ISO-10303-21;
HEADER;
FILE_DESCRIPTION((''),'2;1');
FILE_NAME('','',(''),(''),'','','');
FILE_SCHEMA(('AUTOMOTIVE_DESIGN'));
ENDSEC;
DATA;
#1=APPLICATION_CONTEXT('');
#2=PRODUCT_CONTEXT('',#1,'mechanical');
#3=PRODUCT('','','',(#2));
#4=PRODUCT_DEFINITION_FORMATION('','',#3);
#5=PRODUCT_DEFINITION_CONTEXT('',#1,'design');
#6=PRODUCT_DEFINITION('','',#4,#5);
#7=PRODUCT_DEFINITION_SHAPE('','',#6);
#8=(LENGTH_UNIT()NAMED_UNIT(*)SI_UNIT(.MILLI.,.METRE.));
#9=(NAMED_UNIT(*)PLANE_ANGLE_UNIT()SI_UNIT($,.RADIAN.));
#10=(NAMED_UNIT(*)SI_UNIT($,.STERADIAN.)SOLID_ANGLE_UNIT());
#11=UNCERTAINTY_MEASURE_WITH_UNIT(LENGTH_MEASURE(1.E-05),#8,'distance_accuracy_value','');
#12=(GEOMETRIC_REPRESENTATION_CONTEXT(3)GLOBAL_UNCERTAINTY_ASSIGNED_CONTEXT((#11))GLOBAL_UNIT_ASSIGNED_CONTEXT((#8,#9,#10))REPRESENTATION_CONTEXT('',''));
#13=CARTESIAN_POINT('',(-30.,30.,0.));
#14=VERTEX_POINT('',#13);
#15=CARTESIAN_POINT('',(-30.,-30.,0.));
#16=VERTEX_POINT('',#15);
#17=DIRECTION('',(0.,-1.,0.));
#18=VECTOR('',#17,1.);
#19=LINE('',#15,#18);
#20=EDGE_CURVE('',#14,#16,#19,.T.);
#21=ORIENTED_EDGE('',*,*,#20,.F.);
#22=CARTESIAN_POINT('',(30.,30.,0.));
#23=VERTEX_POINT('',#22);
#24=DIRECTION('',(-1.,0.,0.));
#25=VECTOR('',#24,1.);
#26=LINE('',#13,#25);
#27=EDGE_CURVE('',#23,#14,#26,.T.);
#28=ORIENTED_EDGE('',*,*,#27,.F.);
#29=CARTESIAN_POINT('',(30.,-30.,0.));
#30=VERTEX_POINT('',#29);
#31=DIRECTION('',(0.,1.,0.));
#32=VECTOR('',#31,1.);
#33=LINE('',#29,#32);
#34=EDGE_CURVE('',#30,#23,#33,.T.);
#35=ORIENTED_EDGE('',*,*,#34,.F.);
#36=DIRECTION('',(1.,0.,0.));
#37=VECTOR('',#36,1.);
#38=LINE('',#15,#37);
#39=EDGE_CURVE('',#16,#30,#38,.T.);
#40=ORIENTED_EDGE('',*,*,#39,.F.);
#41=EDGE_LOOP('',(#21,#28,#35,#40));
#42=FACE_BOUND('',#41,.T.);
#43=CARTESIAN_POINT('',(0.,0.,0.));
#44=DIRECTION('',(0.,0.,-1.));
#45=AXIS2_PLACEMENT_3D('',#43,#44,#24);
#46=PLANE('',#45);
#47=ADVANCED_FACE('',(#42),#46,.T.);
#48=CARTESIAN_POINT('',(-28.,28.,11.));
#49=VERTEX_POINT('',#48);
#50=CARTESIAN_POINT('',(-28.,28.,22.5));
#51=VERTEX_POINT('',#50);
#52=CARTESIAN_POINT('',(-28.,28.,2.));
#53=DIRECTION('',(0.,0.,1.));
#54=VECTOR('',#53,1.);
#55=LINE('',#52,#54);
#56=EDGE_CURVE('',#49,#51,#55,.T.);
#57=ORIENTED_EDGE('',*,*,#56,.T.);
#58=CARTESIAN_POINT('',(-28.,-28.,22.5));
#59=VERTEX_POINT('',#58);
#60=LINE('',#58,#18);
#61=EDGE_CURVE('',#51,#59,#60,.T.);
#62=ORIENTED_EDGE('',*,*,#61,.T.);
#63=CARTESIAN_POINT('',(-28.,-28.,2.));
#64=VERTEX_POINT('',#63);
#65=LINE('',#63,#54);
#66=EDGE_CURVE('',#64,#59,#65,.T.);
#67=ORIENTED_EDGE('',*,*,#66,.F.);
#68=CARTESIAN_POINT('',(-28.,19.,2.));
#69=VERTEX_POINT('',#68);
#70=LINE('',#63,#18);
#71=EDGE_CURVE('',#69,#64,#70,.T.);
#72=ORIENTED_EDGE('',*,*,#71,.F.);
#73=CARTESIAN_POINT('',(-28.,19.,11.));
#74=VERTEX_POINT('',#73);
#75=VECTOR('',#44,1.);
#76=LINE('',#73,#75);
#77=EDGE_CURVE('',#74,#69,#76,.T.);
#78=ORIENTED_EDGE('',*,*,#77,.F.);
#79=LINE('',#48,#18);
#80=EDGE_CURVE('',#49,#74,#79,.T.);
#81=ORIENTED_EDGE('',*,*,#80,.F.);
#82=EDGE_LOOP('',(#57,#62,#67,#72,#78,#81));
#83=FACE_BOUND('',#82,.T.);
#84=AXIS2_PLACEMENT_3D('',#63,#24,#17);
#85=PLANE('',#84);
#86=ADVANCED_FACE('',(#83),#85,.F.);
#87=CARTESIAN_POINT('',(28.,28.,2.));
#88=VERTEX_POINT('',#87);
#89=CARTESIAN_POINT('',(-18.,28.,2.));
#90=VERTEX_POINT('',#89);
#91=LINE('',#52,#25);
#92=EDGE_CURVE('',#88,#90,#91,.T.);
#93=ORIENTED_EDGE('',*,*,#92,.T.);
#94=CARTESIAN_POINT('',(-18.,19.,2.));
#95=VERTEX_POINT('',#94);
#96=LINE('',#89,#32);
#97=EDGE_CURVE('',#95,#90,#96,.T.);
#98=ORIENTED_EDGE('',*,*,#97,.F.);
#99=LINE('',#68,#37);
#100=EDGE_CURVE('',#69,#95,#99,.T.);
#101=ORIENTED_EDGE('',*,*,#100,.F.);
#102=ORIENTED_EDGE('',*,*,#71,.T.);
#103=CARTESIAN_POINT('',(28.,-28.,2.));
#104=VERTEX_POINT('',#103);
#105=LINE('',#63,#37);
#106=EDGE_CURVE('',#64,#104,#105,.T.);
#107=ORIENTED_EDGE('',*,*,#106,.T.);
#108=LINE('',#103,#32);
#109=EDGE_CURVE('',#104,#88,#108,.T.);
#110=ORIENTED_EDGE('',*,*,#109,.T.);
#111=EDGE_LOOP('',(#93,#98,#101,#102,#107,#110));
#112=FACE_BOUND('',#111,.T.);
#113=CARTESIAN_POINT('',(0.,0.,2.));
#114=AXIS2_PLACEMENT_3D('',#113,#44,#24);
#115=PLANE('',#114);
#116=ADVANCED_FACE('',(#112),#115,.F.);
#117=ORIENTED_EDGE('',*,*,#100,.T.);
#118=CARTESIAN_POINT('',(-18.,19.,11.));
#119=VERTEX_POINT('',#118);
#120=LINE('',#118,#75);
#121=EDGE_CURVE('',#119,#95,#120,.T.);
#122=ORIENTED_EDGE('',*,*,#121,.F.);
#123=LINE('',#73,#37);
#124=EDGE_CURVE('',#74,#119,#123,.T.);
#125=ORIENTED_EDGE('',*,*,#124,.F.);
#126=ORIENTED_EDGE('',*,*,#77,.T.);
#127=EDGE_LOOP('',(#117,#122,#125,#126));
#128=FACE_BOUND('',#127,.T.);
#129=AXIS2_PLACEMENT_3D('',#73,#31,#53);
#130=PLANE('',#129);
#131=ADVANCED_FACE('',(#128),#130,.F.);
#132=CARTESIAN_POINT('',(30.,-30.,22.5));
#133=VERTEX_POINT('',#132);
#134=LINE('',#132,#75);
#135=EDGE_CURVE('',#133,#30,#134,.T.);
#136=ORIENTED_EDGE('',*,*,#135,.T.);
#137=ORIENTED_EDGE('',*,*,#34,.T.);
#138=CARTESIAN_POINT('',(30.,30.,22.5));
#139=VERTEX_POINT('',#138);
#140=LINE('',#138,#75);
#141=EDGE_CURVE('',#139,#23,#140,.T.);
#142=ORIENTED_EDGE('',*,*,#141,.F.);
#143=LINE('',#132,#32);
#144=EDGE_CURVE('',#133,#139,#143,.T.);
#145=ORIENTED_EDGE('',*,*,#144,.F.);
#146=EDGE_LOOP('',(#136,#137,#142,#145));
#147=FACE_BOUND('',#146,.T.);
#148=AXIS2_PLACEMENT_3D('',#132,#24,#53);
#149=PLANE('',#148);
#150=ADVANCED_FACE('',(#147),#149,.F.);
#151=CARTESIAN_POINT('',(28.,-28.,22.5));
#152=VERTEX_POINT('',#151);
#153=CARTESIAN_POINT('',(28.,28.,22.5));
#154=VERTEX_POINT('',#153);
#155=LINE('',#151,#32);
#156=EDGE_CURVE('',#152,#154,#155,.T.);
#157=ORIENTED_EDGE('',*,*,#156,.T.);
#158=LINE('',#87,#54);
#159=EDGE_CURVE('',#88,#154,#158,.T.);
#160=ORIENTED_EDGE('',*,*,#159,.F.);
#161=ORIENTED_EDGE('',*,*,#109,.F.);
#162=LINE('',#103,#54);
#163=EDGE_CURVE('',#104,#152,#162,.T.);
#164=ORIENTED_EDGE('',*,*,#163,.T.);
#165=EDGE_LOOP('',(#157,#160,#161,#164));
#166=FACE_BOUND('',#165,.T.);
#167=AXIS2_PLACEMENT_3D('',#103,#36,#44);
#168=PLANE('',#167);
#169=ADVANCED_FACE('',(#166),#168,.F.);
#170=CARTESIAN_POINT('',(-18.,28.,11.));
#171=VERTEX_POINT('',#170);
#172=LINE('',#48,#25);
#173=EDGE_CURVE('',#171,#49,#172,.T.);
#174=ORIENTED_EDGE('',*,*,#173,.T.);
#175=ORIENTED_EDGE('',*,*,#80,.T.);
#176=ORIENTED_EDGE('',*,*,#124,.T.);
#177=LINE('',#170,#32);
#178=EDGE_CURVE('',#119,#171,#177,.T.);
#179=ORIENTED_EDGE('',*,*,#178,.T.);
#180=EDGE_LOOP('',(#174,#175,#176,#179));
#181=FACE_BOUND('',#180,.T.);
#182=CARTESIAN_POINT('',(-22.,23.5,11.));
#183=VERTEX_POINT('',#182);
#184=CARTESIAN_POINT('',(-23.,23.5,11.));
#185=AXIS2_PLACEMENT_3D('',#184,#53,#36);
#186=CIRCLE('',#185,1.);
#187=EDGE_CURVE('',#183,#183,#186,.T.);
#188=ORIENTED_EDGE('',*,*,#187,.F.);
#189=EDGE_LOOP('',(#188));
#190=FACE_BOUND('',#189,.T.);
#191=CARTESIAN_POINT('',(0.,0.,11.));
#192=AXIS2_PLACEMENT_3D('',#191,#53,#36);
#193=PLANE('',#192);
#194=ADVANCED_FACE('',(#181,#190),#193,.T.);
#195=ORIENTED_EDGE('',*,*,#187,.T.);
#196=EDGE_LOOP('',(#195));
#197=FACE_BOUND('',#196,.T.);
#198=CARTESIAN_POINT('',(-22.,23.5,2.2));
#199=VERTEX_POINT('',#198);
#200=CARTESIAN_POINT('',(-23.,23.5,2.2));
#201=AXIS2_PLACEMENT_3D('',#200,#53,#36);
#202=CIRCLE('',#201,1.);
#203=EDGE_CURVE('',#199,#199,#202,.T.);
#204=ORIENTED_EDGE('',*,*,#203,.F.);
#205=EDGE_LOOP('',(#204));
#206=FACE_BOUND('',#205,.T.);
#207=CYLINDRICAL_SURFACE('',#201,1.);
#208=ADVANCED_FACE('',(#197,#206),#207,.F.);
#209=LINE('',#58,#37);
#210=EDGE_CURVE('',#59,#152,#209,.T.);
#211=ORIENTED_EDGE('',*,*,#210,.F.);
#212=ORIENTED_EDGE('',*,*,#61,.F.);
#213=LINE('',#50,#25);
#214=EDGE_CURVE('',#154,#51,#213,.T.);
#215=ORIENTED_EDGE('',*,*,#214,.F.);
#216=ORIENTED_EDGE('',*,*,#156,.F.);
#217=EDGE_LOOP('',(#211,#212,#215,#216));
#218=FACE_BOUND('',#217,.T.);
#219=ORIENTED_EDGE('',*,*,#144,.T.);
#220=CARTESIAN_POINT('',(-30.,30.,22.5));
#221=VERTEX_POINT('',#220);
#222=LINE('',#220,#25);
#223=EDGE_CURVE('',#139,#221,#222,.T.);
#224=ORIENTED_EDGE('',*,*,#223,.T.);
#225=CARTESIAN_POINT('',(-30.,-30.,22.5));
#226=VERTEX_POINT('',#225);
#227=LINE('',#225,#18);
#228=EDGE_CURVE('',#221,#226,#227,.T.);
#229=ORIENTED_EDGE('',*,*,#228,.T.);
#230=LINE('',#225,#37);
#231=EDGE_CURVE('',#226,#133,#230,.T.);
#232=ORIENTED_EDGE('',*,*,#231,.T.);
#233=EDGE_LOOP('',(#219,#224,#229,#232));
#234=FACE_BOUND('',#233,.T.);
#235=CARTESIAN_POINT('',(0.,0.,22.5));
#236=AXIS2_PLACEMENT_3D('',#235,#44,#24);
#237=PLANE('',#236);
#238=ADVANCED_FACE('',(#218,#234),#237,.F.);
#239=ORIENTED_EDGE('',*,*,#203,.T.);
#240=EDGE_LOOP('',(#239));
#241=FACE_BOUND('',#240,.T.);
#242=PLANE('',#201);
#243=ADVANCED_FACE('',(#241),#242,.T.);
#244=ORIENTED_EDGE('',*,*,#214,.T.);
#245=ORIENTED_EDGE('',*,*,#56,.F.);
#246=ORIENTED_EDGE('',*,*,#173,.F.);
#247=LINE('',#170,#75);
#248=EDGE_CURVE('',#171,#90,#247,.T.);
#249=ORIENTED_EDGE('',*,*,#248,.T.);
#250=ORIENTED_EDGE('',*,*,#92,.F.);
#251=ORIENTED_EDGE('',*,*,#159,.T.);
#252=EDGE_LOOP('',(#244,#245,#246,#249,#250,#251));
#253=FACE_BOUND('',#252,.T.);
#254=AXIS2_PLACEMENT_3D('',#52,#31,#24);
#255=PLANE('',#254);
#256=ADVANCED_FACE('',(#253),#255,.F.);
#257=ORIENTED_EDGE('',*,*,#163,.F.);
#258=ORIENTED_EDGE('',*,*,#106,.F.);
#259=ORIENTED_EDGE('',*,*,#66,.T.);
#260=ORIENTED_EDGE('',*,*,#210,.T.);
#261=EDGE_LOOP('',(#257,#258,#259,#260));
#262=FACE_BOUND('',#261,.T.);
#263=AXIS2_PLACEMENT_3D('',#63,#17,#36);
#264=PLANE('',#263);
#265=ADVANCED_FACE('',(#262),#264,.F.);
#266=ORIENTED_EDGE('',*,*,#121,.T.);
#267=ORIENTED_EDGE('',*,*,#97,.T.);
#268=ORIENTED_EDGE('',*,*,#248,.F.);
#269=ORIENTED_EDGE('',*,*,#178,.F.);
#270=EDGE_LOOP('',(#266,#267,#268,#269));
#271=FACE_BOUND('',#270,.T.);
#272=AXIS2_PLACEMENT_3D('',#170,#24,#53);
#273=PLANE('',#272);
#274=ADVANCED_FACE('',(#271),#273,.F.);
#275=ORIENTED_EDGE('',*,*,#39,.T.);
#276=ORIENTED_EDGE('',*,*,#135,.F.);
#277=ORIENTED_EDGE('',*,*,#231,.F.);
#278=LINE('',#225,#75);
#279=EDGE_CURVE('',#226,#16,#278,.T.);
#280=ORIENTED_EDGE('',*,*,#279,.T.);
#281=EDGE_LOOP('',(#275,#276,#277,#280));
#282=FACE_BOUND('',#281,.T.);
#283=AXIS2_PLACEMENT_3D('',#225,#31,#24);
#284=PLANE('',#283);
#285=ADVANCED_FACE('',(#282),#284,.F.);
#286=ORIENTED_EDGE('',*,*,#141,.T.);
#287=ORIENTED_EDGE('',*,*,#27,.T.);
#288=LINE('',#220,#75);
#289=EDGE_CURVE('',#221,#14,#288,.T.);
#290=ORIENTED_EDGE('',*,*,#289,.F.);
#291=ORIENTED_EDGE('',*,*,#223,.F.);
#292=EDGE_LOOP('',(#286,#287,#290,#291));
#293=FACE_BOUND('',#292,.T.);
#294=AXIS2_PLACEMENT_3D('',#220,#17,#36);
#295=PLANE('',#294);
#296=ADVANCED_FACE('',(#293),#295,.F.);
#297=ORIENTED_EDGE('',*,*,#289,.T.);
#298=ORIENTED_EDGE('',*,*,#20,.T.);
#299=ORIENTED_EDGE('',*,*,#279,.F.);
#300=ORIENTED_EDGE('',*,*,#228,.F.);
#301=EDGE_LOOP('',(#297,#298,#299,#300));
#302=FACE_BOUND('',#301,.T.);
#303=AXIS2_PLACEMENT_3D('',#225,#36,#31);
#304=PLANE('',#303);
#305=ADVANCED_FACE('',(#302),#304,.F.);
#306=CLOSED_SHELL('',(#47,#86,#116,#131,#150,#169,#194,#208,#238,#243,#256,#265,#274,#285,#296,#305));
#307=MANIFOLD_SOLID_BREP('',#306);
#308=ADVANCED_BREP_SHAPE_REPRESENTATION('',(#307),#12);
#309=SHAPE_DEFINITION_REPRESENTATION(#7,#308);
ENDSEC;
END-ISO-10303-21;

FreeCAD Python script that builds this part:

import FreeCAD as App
import Part
import Sketcher

V = App.Vector

doc = App.newDocument("Part")
body = doc.addObject("PartDesign::Body", "Body")

# Sketch on XY plane
sketch1 = body.newObject("Sketcher::SketchObject", "Sketch")
sketch1.AttachmentSupport = (doc.getObject("XY_Plane"), [""])
sketch1.MapMode = "FlatFace"
sketch1.addGeometry(Part.LineSegment(V(-30, 30, 0), V(-30, -30, 0)), False)
sketch1.addGeometry(Part.LineSegment(V(-30, -30, 0), V(30, -30, 0)), False)
sketch1.addGeometry(Part.LineSegment(V(30, -30, 0), V(30, 30, 0)), False)
sketch1.addGeometry(Part.LineSegment(V(30, 30, 0), V(-30, 30, 0)), False)
sketch1.addConstraint(Sketcher.Constraint("Coincident", 0, 2, 1, 1))
sketch1.addConstraint(Sketcher.Constraint("Coincident", 1, 2, 2, 1))
sketch1.addConstraint(Sketcher.Constraint("Coincident", 2, 2, 3, 1))
sketch1.addConstraint(Sketcher.Constraint("Coincident", 3, 2, 0, 1))
sketch1.addConstraint(Sketcher.Constraint("Vertical", 0))
sketch1.addConstraint(Sketcher.Constraint("Horizontal", 1))
sketch1.addConstraint(Sketcher.Constraint("Vertical", 2))
sketch1.addConstraint(Sketcher.Constraint("Horizontal", 3))
sketch1.addConstraint(Sketcher.Constraint("Symmetric", 0, 2, 2, 2, -1, 1))
sketch1.addConstraint(Sketcher.Constraint("Equal", 3, 0))
sketch1.addConstraint(Sketcher.Constraint("DistanceX", 1, 1, 1, 2, 60.0))
pad1 = body.newObject("PartDesign::Pad", "Pad")
pad1.Profile = sketch1
pad1.Length = 22.5

# Sketch on XY plane
sketch2 = body.newObject("Sketcher::SketchObject", "Sketch001")
sketch2.AttachmentSupport = (doc.getObject("XY_Plane"), [""])
sketch2.MapMode = "FlatFace"
sketch2.AttachmentOffset = App.Placement(V(0, 0, 22.5), App.Rotation())
sketch2.addGeometry(Part.LineSegment(V(-28, 28, 0), V(-28, -28, 0)), False)
sketch2.addGeometry(Part.LineSegment(V(-28, -28, 0), V(28, -28, 0)), False)
sketch2.addGeometry(Part.LineSegment(V(28, -28, 0), V(28, 28, 0)), False)
sketch2.addGeometry(Part.LineSegment(V(28, 28, 0), V(-28, 28, 0)), False)
sketch2.addConstraint(Sketcher.Constraint("Coincident", 0, 2, 1, 1))
sketch2.addConstraint(Sketcher.Constraint("Coincident", 1, 2, 2, 1))
sketch2.addConstraint(Sketcher.Constraint("Coincident", 2, 2, 3, 1))
sketch2.addConstraint(Sketcher.Constraint("Coincident", 3, 2, 0, 1))
sketch2.addConstraint(Sketcher.Constraint("Vertical", 0))
sketch2.addConstraint(Sketcher.Constraint("Horizontal", 1))
sketch2.addConstraint(Sketcher.Constraint("Vertical", 2))
sketch2.addConstraint(Sketcher.Constraint("Horizontal", 3))
sketch2.addConstraint(Sketcher.Constraint("Symmetric", 0, 2, 2, 2, -1, 1))
sketch2.addConstraint(Sketcher.Constraint("Equal", 3, 0))
sketch2.addConstraint(Sketcher.Constraint("DistanceX", 1, 1, 1, 2, 56.0))
pocket1 = body.newObject("PartDesign::Pocket", "Pocket")
pocket1.Profile = sketch2
pocket1.Length = 20.5

# Sketch on XY plane
sketch3 = body.newObject("Sketcher::SketchObject", "Sketch002")
sketch3.AttachmentSupport = (doc.getObject("XY_Plane"), [""])
sketch3.MapMode = "FlatFace"
sketch3.AttachmentOffset = App.Placement(V(0, 0, 2), App.Rotation())
sketch3.addGeometry(Part.LineSegment(V(-28, 28, 0), V(-28, 19, 0)), False)
sketch3.addGeometry(Part.LineSegment(V(-28, 19, 0), V(-18, 19, 0)), False)
sketch3.addGeometry(Part.LineSegment(V(-18, 19, 0), V(-18, 28, 0)), False)
sketch3.addGeometry(Part.LineSegment(V(-18, 28, 0), V(-28, 28, 0)), False)
sketch3.addConstraint(Sketcher.Constraint("Coincident", 0, 2, 1, 1))
sketch3.addConstraint(Sketcher.Constraint("Coincident", 1, 2, 2, 1))
sketch3.addConstraint(Sketcher.Constraint("Coincident", 2, 2, 3, 1))
sketch3.addConstraint(Sketcher.Constraint("Coincident", 3, 2, 0, 1))
sketch3.addConstraint(Sketcher.Constraint("Vertical", 0))
sketch3.addConstraint(Sketcher.Constraint("Horizontal", 1))
sketch3.addConstraint(Sketcher.Constraint("Vertical", 2))
sketch3.addConstraint(Sketcher.Constraint("Horizontal", 3))
sketch3.addConstraint(Sketcher.Constraint("DistanceX", 1, 1, 1, 2, 10.0))
sketch3.addConstraint(Sketcher.Constraint("DistanceY", 0, 2, 0, 1, 9.0))
sketch3.addConstraint(Sketcher.Constraint("DistanceX", 0, 2, -1, 1, 28.0))
sketch3.addConstraint(Sketcher.Constraint("DistanceY", -1, 1, 0, 2, 19.0))
pad2 = body.newObject("PartDesign::Pad", "Pad001")
pad2.Profile = sketch3
pad2.Length = 9

# Sketch on XY plane
sketch4 = body.newObject("Sketcher::SketchObject", "Sketch003")
sketch4.AttachmentSupport = (doc.getObject("XY_Plane"), [""])
sketch4.MapMode = "FlatFace"
sketch4.AttachmentOffset = App.Placement(V(0, 0, 11), App.Rotation())
sketch4.addGeometry(Part.Circle(V(-23, 23.5, 0), V(0, 0, 1), 1), False)
sketch4.addConstraint(Sketcher.Constraint("Diameter", 0, 2.0))
sketch4.addConstraint(Sketcher.Constraint("DistanceX", 0, 3, -1, 1, 23.0))
sketch4.addConstraint(Sketcher.Constraint("DistanceY", -1, 1, 0, 3, 23.5))
pocket2 = body.newObject("PartDesign::Pocket", "Pocket001")
pocket2.Profile = sketch4
pocket2.Length = 8.8

doc.recompute()
